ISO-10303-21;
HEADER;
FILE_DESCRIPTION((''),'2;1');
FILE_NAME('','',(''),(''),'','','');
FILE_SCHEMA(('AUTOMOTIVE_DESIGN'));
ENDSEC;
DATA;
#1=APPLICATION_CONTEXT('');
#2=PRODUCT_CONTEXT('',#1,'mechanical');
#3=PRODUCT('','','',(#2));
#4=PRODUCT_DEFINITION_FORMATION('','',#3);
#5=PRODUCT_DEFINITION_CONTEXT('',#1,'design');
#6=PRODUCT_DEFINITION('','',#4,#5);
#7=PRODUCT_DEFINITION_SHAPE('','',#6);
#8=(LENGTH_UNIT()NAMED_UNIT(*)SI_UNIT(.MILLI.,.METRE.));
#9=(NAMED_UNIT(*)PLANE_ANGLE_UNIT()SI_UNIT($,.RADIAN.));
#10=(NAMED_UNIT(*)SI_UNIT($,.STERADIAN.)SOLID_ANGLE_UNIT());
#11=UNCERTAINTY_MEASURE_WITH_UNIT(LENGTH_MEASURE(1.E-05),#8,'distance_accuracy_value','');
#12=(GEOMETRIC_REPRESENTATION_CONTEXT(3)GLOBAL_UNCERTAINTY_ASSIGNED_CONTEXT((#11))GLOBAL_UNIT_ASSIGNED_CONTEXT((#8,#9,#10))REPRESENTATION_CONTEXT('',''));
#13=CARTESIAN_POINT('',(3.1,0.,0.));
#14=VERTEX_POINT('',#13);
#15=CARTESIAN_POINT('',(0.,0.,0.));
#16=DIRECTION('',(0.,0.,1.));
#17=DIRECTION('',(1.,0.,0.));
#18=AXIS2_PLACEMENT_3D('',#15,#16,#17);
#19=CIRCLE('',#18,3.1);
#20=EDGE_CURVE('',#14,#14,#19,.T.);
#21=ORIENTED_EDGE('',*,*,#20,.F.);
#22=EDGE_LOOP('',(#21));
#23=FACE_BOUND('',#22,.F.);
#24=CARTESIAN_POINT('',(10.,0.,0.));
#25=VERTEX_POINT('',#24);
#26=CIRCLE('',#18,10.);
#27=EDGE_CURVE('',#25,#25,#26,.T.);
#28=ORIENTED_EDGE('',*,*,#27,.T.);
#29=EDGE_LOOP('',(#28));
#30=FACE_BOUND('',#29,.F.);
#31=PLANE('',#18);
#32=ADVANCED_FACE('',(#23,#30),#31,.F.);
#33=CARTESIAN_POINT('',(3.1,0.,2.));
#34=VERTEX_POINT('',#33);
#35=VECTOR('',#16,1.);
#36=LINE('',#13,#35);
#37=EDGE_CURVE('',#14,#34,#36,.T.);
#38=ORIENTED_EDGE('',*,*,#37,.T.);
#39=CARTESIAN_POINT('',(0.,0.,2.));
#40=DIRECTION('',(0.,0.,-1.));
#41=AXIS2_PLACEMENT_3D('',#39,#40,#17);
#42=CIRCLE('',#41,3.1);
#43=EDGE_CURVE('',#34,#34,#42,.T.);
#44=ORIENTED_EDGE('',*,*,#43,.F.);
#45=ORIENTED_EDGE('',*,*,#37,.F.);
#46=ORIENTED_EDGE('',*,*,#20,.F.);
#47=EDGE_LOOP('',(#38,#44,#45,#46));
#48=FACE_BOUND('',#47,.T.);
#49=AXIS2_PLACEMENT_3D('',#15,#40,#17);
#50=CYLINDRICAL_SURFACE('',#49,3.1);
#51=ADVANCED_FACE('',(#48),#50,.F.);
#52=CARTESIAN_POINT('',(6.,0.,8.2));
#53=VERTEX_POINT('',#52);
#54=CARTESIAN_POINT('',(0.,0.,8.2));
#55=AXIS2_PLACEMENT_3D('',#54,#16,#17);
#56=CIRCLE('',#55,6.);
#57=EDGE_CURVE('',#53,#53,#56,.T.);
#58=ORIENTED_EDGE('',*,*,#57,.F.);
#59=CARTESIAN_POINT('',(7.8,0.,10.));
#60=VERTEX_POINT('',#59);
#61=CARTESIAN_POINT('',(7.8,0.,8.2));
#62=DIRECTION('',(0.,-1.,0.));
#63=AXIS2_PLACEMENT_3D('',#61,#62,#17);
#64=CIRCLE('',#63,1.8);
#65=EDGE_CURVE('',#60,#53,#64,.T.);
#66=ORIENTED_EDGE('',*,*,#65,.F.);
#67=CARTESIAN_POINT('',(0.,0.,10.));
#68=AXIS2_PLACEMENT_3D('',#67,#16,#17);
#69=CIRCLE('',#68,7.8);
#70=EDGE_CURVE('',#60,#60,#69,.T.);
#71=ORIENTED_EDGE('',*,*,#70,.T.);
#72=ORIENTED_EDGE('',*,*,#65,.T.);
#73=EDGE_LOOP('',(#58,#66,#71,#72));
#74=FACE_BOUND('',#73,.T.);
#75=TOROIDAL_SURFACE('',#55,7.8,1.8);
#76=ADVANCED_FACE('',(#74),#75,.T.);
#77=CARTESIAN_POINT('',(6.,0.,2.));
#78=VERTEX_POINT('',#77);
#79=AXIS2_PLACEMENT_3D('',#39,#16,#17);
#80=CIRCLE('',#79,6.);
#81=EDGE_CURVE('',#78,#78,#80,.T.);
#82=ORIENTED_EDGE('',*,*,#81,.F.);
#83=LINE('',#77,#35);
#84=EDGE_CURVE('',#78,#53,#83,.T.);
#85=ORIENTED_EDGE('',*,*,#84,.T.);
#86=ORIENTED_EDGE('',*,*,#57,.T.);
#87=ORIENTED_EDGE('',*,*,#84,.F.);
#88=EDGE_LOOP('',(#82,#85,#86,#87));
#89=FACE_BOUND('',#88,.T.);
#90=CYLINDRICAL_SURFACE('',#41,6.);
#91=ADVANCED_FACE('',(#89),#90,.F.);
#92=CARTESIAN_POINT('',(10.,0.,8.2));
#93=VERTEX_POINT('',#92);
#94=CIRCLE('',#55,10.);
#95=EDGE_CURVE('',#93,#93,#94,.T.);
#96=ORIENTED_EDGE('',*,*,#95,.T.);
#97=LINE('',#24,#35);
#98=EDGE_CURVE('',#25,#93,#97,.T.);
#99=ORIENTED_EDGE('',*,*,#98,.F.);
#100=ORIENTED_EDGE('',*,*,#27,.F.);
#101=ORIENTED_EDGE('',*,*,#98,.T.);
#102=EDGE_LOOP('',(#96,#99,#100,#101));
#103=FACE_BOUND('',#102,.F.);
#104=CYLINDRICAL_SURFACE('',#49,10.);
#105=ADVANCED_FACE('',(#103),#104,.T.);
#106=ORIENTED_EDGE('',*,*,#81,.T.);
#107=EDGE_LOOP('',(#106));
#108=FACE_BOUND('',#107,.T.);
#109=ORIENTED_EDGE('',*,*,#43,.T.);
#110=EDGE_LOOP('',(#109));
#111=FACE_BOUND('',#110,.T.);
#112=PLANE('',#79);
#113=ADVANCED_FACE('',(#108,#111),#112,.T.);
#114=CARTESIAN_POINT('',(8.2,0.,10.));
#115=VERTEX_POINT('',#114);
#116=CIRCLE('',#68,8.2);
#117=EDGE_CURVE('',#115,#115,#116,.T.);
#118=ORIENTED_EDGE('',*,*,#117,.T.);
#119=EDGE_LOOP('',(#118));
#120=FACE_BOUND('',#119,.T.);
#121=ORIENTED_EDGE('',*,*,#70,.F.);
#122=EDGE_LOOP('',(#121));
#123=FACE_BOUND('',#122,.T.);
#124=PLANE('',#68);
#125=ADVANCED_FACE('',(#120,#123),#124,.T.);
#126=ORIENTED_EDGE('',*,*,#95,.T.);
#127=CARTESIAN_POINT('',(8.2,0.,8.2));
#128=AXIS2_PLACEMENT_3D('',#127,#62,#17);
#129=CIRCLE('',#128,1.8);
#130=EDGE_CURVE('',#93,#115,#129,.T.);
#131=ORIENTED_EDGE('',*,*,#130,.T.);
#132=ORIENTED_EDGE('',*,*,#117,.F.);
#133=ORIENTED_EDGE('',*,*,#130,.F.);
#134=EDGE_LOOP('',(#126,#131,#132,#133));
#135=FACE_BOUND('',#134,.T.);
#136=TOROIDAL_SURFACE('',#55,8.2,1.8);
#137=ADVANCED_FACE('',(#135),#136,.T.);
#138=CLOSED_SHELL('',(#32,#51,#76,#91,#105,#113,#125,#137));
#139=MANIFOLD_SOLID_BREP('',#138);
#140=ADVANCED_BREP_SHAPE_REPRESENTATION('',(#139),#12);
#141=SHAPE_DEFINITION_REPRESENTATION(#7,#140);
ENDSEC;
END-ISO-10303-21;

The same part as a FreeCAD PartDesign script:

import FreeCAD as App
import Part
import Sketcher
Q = App.Units.Quantity


def edges_at(feature, points):
    """Names of the edges that pass closest to the given points."""
    edges = feature.Shape.Edges
    near = lambda p: min(range(len(edges)), key=lambda i: edges[i].distToShape(Part.Vertex(*p))[0])
    return sorted({f"Edge{near(p) + 1}" for p in points})

doc = App.newDocument("Part")
params = doc.addObject("Spreadsheet::Sheet", "Params")
for row, (alias, value) in enumerate([
    ("sketch1_diameter", "12 mm"),
    ("pad1_length", "8 mm"),
    ("sketch2_diameter", "6.2 mm"),
    ("pad2_length", "10 mm"),
    ("sketch3_diameter", "20 mm"),
    ("pad3_length", "10 mm"),
    ("fillet_radius", "1.8 mm"),
], start=1):
    params.set(f"A{row}", alias)
    params.set(f"B{row}", "=" + value)
    params.setAlias(f"B{row}", alias)

body = doc.addObject("PartDesign::Body", "Body")

# Sketch on XY plane
sketch1 = body.newObject("Sketcher::SketchObject", "Sketch")
sketch1.AttachmentSupport = (doc.getObject("XY_Plane"), [""])
sketch1.MapMode = "FlatFace"
sketch1.AttachmentOffset = App.Placement(App.Vector(0, 0, 2), App.Rotation())
sketch1.addGeometry(Part.Circle(App.Vector(0, 0, 0), App.Vector(0, 0, 1), 6), False)
sketch1.addConstraint([
    Sketcher.Constraint("Coincident", 0, 3, -1, 1),
    Sketcher.Constraint("Diameter", 0, Q("12 mm")),
])
sketch1.setExpression("Constraints[1]", "Params.sketch1_diameter")
pad1 = body.newObject("PartDesign::Pad", "Pad")
pad1.Profile = sketch1
pad1.setExpression("Length", "Params.pad1_length")
body2 = doc.addObject("PartDesign::Body", "Body001")

# Sketch on XY plane
sketch2 = body2.newObject("Sketcher::SketchObject", "Sketch001")
sketch2.AttachmentSupport = (doc.getObject("XY_Plane001"), [""])
sketch2.MapMode = "FlatFace"
sketch2.addGeometry(Part.Circle(App.Vector(0, 0, 0), App.Vector(0, 0, 1), 3.1), False)
sketch2.addConstraint([
    Sketcher.Constraint("Coincident", 0, 3, -1, 1),
    Sketcher.Constraint("Diameter", 0, Q("6.2 mm")),
])
sketch2.setExpression("Constraints[1]", "Params.sketch2_diameter")
pad2 = body2.newObject("PartDesign::Pad", "Pad001")
pad2.Profile = sketch2
pad2.setExpression("Length", "Params.pad2_length")
body3 = doc.addObject("PartDesign::Body", "Body002")

# Sketch on XY plane
sketch3 = body3.newObject("Sketcher::SketchObject", "Sketch002")
sketch3.AttachmentSupport = (doc.getObject("XY_Plane002"), [""])
sketch3.MapMode = "FlatFace"
sketch3.addGeometry(Part.Circle(App.Vector(0, 0, 0), App.Vector(0, 0, 1), 10), False)
sketch3.addConstraint([
    Sketcher.Constraint("Coincident", 0, 3, -1, 1),
    Sketcher.Constraint("Diameter", 0, Q("20 mm")),
])
sketch3.setExpression("Constraints[1]", "Params.sketch3_diameter")
pad3 = body3.newObject("PartDesign::Pad", "Pad002")
pad3.Profile = sketch3
pad3.setExpression("Length", "Params.pad3_length")
doc.recompute()

boolean = body3.newObject("PartDesign::Boolean", "Boolean")
boolean.Type = "Cut"
boolean.addObjects([body2])
doc.recompute()

boolean2 = body3.newObject("PartDesign::Boolean", "Boolean001")
boolean2.Type = "Cut"
boolean2.addObjects([body])
doc.recompute()

fillet = body3.newObject("PartDesign::Fillet", "Fillet")
fillet.Base = (boolean2, edges_at(boolean2, [(-10, 0, 10), (-6, 0, 10)]))
fillet.setExpression("Radius", "Params.fillet_radius")

doc.recompute()
